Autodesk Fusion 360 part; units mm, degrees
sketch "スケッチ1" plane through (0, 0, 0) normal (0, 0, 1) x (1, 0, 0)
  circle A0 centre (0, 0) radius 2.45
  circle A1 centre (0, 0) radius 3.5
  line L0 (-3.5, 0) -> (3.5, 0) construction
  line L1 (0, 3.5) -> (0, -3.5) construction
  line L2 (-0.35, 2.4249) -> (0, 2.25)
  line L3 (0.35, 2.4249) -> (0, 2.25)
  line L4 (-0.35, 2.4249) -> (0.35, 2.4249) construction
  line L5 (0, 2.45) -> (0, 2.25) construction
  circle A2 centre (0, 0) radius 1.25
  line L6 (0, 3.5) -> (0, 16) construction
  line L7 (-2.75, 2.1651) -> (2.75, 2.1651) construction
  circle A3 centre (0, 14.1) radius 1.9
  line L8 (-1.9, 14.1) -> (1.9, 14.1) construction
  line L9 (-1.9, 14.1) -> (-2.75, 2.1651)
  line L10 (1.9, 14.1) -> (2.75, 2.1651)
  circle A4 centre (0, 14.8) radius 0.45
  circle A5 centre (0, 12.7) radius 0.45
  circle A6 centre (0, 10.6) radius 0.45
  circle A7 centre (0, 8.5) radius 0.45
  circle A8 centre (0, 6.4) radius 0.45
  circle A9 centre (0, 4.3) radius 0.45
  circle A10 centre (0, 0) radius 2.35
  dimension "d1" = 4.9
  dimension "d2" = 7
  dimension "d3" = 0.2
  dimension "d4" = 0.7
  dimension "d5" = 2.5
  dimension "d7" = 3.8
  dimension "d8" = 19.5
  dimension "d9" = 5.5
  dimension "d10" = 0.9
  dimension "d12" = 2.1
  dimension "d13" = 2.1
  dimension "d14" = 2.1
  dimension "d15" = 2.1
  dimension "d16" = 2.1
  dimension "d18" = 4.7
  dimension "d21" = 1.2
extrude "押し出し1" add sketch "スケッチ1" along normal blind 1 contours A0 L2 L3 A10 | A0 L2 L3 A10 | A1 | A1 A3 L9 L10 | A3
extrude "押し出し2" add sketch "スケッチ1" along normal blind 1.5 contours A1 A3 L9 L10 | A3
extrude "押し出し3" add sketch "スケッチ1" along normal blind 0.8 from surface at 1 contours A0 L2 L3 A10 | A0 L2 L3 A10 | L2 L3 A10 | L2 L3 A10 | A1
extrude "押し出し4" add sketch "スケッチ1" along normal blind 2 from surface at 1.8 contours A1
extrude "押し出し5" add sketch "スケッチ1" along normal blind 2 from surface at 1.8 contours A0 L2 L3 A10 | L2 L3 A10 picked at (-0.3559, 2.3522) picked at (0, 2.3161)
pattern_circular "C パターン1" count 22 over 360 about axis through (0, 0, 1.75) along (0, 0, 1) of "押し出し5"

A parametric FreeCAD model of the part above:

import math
import FreeCAD as App
import Part
import Sketcher

V = App.Vector

doc = App.newDocument("Part")
params = doc.addObject("Spreadsheet::Sheet", "Params")
for row, (alias, value) in enumerate([
    ("sketch1_diameter", "4.7 mm"),
    ("sketch1_diameter2", "0.9 mm"),
    ("sketch1_radius", "3.5 mm"),
    ("sketch1_radius2", "1.9 mm"),
    ("pad1_length", "1 mm"),
    ("sketch2_diameter", "0.9 mm"),
    ("sketch2_radius", "3.5 mm"),
    ("sketch2_radius2", "1.9 mm"),
    ("pad2_length", "1.5 mm"),
    ("sketch3_diameter", "7 mm"),
    ("sketch3_diameter2", "2.5 mm"),
    ("pad3_length", "0.8 mm"),
    ("sketch4_diameter", "7 mm"),
    ("sketch4_diameter2", "4.9 mm"),
    ("pad4_length", "2 mm"),
    ("sketch5_radius", "2.45 mm"),
    ("sketch5_radius2", "2.35 mm"),
    ("pad5_length", "2 mm"),
], start=1):
    params.set(f"A{row}", alias)
    params.set(f"B{row}", "=" + value)
    params.setAlias(f"B{row}", alias)

body = doc.addObject("PartDesign::Body", "Body")

sketch1 = doc.addObject("Sketcher::SketchObject", "Sketch")
body.addObject(sketch1)
sketch1.AttachmentSupport = (doc.XY_Plane, [""])
sketch1.MapMode = "FlatFace"
sketch1.addGeometry(Part.ArcOfCircle(Part.Circle(V(0, 0, 0), V(0, 0, 1), 3.5), math.radians(142), math.radians(398)), False)
sketch1.addGeometry(Part.LineSegment(V(2.75, 2.17, 0), V(1.9, 14.1, 0)), False)
sketch1.addGeometry(Part.ArcOfCircle(Part.Circle(V(0, 14.1, 0), V(0, 0, 1), 1.9), math.radians(0), math.radians(180)), False)
sketch1.addGeometry(Part.LineSegment(V(-1.9, 14.1, 0), V(-2.75, 2.17, 0)), False)
sketch1.addGeometry(Part.Circle(V(0, 0, 0), V(0, 0, 1), 2.35), False)
sketch1.addGeometry(Part.Circle(V(0, 10.6, 0), V(0, 0, 1), 0.45), False)
sketch1.addGeometry(Part.Circle(V(0, 4.3, 0), V(0, 0, 1), 0.45), False)
sketch1.addGeometry(Part.Circle(V(0, 6.4, 0), V(0, 0, 1), 0.45), False)
sketch1.addGeometry(Part.Circle(V(0, 8.5, 0), V(0, 0, 1), 0.45), False)
sketch1.addGeometry(Part.Circle(V(0, 14.8, 0), V(0, 0, 1), 0.45), False)
sketch1.addGeometry(Part.Circle(V(0, 12.7, 0), V(0, 0, 1), 0.45), False)
sketch1.addConstraint(Sketcher.Constraint("Coincident", 0, 2, 1, 1))
sketch1.addConstraint(Sketcher.Constraint("Coincident", 1, 2, 2, 1))
sketch1.addConstraint(Sketcher.Constraint("Coincident", 2, 2, 3, 1))
sketch1.addConstraint(Sketcher.Constraint("Coincident", 3, 2, 0, 1))
sketch1.addConstraint(Sketcher.Constraint("Coincident", 0, 3, -1, 1))
sketch1.addConstraint(Sketcher.Constraint("Coincident", 4, 3, -1, 1))
sketch1.addConstraint(Sketcher.Constraint("Equal", 5, 6))
sketch1.addConstraint(Sketcher.Constraint("Equal", 6, 7))
sketch1.addConstraint(Sketcher.Constraint("Equal", 7, 8))
sketch1.addConstraint(Sketcher.Constraint("Equal", 8, 9))
sketch1.addConstraint(Sketcher.Constraint("Equal", 9, 10))
sketch1.addConstraint(Sketcher.Constraint("Symmetric", 1, 2, 2, 2, -2))
sketch1.addConstraint(Sketcher.Constraint("PointOnObject", 5, 3, -2))
sketch1.addConstraint(Sketcher.Constraint("PointOnObject", 6, 3, -2))
sketch1.addConstraint(Sketcher.Constraint("PointOnObject", 7, 3, -2))
sketch1.addConstraint(Sketcher.Constraint("PointOnObject", 8, 3, -2))
sketch1.addConstraint(Sketcher.Constraint("PointOnObject", 9, 3, -2))
sketch1.addConstraint(Sketcher.Constraint("PointOnObject", 10, 3, -2))
sketch1.addConstraint(Sketcher.Constraint("Horizontal", 2, 3, 1, 2))
sketch1.addConstraint(Sketcher.Constraint("Horizontal", 0, 2, 3, 2))
sketch1.addConstraint(Sketcher.Constraint("Diameter", 4, 4.7))
sketch1.addConstraint(Sketcher.Constraint("Diameter", 5, 0.9))
sketch1.addConstraint(Sketcher.Constraint("Radius", 0, 3.5))
sketch1.addConstraint(Sketcher.Constraint("Radius", 2, 1.9))
sketch1.addConstraint(Sketcher.Constraint("DistanceY", 6, 3, 7, 3, 2.1))
sketch1.addConstraint(Sketcher.Constraint("DistanceY", 8, 3, 5, 3, 2.1))
sketch1.addConstraint(Sketcher.Constraint("DistanceY", 7, 3, 8, 3, 2.1))
sketch1.addConstraint(Sketcher.Constraint("DistanceY", 2, 3, 9, 3, 0.7))
sketch1.addConstraint(Sketcher.Constraint("DistanceY", 5, 3, 10, 3, 2.1))
sketch1.addConstraint(Sketcher.Constraint("DistanceY", 10, 3, 9, 3, 2.1))
sketch1.addConstraint(Sketcher.Constraint("DistanceX", 3, 2, 0, 2, 5.5))
sketch1.addConstraint(Sketcher.Constraint("DistanceY", -1, 1, 2, 3, 14.1))
sketch1.setExpression("Constraints[20]", "Params.sketch1_diameter")
sketch1.setExpression("Constraints[21]", "Params.sketch1_diameter2")
sketch1.setExpression("Constraints[22]", "Params.sketch1_radius")
sketch1.setExpression("Constraints[23]", "Params.sketch1_radius2")
pad1 = doc.addObject("PartDesign::Pad", "Pad")
body.addObject(pad1)
pad1.Profile = sketch1
pad1.setExpression("Length", "Params.pad1_length")

sketch2 = doc.addObject("Sketcher::SketchObject", "Sketch001")
body.addObject(sketch2)
sketch2.AttachmentSupport = (doc.XY_Plane, [""])
sketch2.MapMode = "FlatFace"
sketch2.addGeometry(Part.ArcOfCircle(Part.Circle(V(0, 0, 0), V(0, 0, 1), 3.5), math.radians(38), math.radians(142)), False)
sketch2.addGeometry(Part.LineSegment(V(2.75, 2.17, 0), V(1.9, 14.1, 0)), False)
sketch2.addGeometry(Part.ArcOfCircle(Part.Circle(V(0, 14.1, 0), V(0, 0, 1), 1.9), math.radians(0), math.radians(180)), False)
sketch2.addGeometry(Part.LineSegment(V(-1.9, 14.1, 0), V(-2.75, 2.17, 0)), False)
sketch2.addGeometry(Part.Circle(V(0, 4.3, 0), V(0, 0, 1), 0.45), False)
sketch2.addGeometry(Part.Circle(V(0, 6.4, 0), V(0, 0, 1), 0.45), False)
sketch2.addGeometry(Part.Circle(V(0, 8.5, 0), V(0, 0, 1), 0.45), False)
sketch2.addGeometry(Part.Circle(V(0, 10.6, 0), V(0, 0, 1), 0.45), False)
sketch2.addGeometry(Part.Circle(V(0, 14.8, 0), V(0, 0, 1), 0.45), False)
sketch2.addGeometry(Part.Circle(V(0, 12.7, 0), V(0, 0, 1), 0.45), False)
sketch2.addConstraint(Sketcher.Constraint("Coincident", 0, 1, 1, 1))
sketch2.addConstraint(Sketcher.Constraint("Coincident", 1, 2, 2, 1))
sketch2.addConstraint(Sketcher.Constraint("Coincident", 2, 2, 3, 1))
sketch2.addConstraint(Sketcher.Constraint("Coincident", 3, 2, 0, 2))
sketch2.addConstraint(Sketcher.Constraint("Coincident", 0, 3, -1, 1))
sketch2.addConstraint(Sketcher.Constraint("Equal", 4, 5))
sketch2.addConstraint(Sketcher.Constraint("Equal", 5, 6))
sketch2.addConstraint(Sketcher.Constraint("Equal", 6, 7))
sketch2.addConstraint(Sketcher.Constraint("Equal", 7, 8))
sketch2.addConstraint(Sketcher.Constraint("Equal", 8, 9))
sketch2.addConstraint(Sketcher.Constraint("Symmetric", 1, 2, 2, 2, -2))
sketch2.addConstraint(Sketcher.Constraint("PointOnObject", 4, 3, -2))
sketch2.addConstraint(Sketcher.Constraint("PointOnObject", 5, 3, -2))
sketch2.addConstraint(Sketcher.Constraint("PointOnObject", 6, 3, -2))
sketch2.addConstraint(Sketcher.Constraint("PointOnObject", 7, 3, -2))
sketch2.addConstraint(Sketcher.Constraint("PointOnObject", 8, 3, -2))
sketch2.addConstraint(Sketcher.Constraint("PointOnObject", 9, 3, -2))
sketch2.addConstraint(Sketcher.Constraint("Horizontal", 2, 3, 1, 2))
sketch2.addConstraint(Sketcher.Constraint("Horizontal", 0, 1, 3, 2))
sketch2.addConstraint(Sketcher.Constraint("Diameter", 4, 0.9))
sketch2.addConstraint(Sketcher.Constraint("Radius", 0, 3.5))
sketch2.addConstraint(Sketcher.Constraint("Radius", 2, 1.9))
sketch2.addConstraint(Sketcher.Constraint("DistanceY", 4, 3, 5, 3, 2.1))
sketch2.addConstraint(Sketcher.Constraint("DistanceY", 5, 3, 6, 3, 2.1))
sketch2.addConstraint(Sketcher.Constraint("DistanceY", 6, 3, 7, 3, 2.1))
sketch2.addConstraint(Sketcher.Constraint("DistanceY", 2, 3, 8, 3, 0.7))
sketch2.addConstraint(Sketcher.Constraint("DistanceY", 7, 3, 9, 3, 2.1))
sketch2.addConstraint(Sketcher.Constraint("DistanceY", 9, 3, 8, 3, 2.1))
sketch2.addConstraint(Sketcher.Constraint("DistanceX", 3, 2, 0, 1, 5.5))
sketch2.addConstraint(Sketcher.Constraint("DistanceY", -1, 1, 2, 3, 14.1))
sketch2.setExpression("Constraints[19]", "Params.sketch2_diameter")
sketch2.setExpression("Constraints[20]", "Params.sketch2_radius")
sketch2.setExpression("Constraints[21]", "Params.sketch2_radius2")
pad2 = doc.addObject("PartDesign::Pad", "Pad001")
body.addObject(pad2)
pad2.Profile = sketch2
pad2.setExpression("Length", "Params.pad2_length")

sketch3 = doc.addObject("Sketcher::SketchObject", "Sketch002")
body.addObject(sketch3)
sketch3.AttachmentSupport = (doc.XY_Plane, [""])
sketch3.MapMode = "FlatFace"
sketch3.AttachmentOffset = App.Placement(V(0, 0, 1), App.Rotation())
sketch3.addGeometry(Part.Circle(V(0, 0, 0), V(0, 0, 1), 3.5), False)
sketch3.addGeometry(Part.Circle(V(0, 0, 0), V(0, 0, 1), 1.2), False)
sketch3.addConstraint(Sketcher.Constraint("Coincident", 0, 3, -1, 1))
sketch3.addConstraint(Sketcher.Constraint("Coincident", 1, 3, -1, 1))
sketch3.addConstraint(Sketcher.Constraint("Diameter", 0, 7.0))
sketch3.addConstraint(Sketcher.Constraint("Diameter", 1, 2.5))
sketch3.setExpression("Constraints[2]", "Params.sketch3_diameter")
sketch3.setExpression("Constraints[3]", "Params.sketch3_diameter2")
pad3 = doc.addObject("PartDesign::Pad", "Pad002")
body.addObject(pad3)
pad3.Profile = sketch3
pad3.setExpression("Length", "Params.pad3_length")

sketch4 = doc.addObject("Sketcher::SketchObject", "Sketch003")
body.addObject(sketch4)
sketch4.AttachmentSupport = (doc.XY_Plane, [""])
sketch4.MapMode = "FlatFace"
sketch4.AttachmentOffset = App.Placement(V(0, 0, 1.8), App.Rotation())
sketch4.addGeometry(Part.Circle(V(0, 0, 0), V(0, 0, 1), 3.5), False)
sketch4.addGeometry(Part.Circle(V(0, 0, 0), V(0, 0, 1), 2.5), False)
sketch4.addConstraint(Sketcher.Constraint("Coincident", 0, 3, -1, 1))
sketch4.addConstraint(Sketcher.Constraint("Coincident", 1, 3, -1, 1))
sketch4.addConstraint(Sketcher.Constraint("Diameter", 0, 7.0))
sketch4.addConstraint(Sketcher.Constraint("Diameter", 1, 4.9))
sketch4.setExpression("Constraints[2]", "Params.sketch4_diameter")
sketch4.setExpression("Constraints[3]", "Params.sketch4_diameter2")
pad4 = doc.addObject("PartDesign::Pad", "Pad003")
body.addObject(pad4)
pad4.Profile = sketch4
pad4.setExpression("Length", "Params.pad4_length")

sketch5 = doc.addObject("Sketcher::SketchObject", "Sketch004")
body.addObject(sketch5)
sketch5.AttachmentSupport = (doc.XY_Plane, [""])
sketch5.MapMode = "FlatFace"
sketch5.AttachmentOffset = App.Placement(V(0, 0, 1.8), App.Rotation())
sketch5.addGeometry(Part.ArcOfCircle(Part.Circle(V(0, 0, 0), V(0, 0, 1), 2.45), math.radians(98), math.radians(442)), False)
sketch5.addGeometry(Part.LineSegment(V(0.35, 2.42, 0), V(0.19, 2.34, 0)), False)
sketch5.addGeometry(Part.ArcOfCircle(Part.Circle(V(0, 0, 0), V(0, 0, 1), 2.35), math.radians(95), math.radians(445)), False)
sketch5.addGeometry(Part.LineSegment(V(-0.19, 2.34, 0), V(-0.35, 2.42, 0)), False)
sketch5.addGeometry(Part.LineSegment(V(0, 2.25, 0), V(0.19, 2.34, 0)), False)
sketch5.addGeometry(Part.ArcOfCircle(Part.Circle(V(0, 0, 0), V(0, 0, 1), 2.35), math.radians(85.47), math.radians(94.53)), False)
sketch5.addGeometry(Part.LineSegment(V(-0.19, 2.34, 0), V(0, 2.25, 0)), False)
sketch5.addConstraint(Sketcher.Constraint("Coincident", 0, 2, 1, 1))
sketch5.addConstraint(Sketcher.Constraint("Coincident", 1, 2, 2, 2))
sketch5.addConstraint(Sketcher.Constraint("Coincident", 2, 1, 3, 1))
sketch5.addConstraint(Sketcher.Constraint("Coincident", 3, 2, 0, 1))
sketch5.addConstraint(Sketcher.Constraint("Coincident", 4, 2, 5, 1))
sketch5.addConstraint(Sketcher.Constraint("Coincident", 5, 2, 6, 1))
sketch5.addConstraint(Sketcher.Constraint("Coincident", 6, 2, 4, 1))
sketch5.addConstraint(Sketcher.Constraint("Coincident", 0, 3, -1, 1))
sketch5.addConstraint(Sketcher.Constraint("Coincident", 2, 3, -1, 1))
sketch5.addConstraint(Sketcher.Constraint("Coincident", 5, 3, -1, 1))
sketch5.addConstraint(Sketcher.Constraint("Coincident", 4, 2, 1, 2))
sketch5.addConstraint(Sketcher.Constraint("PointOnObject", 6, 2, -2))
sketch5.addConstraint(Sketcher.Constraint("Parallel", 1, 4))
sketch5.addConstraint(Sketcher.Constraint("Parallel", 3, 6))
sketch5.addConstraint(Sketcher.Constraint("Horizontal", 1, 2, 2, 1))
sketch5.addConstraint(Sketcher.Constraint("Horizontal", 0, 2, 3, 2))
sketch5.addConstraint(Sketcher.Constraint("Radius", 0, 2.45))
sketch5.addConstraint(Sketcher.Constraint("Radius", 2, 2.35))
sketch5.addConstraint(Sketcher.Constraint("DistanceX", 3, 2, 0, 2, 0.7))
sketch5.addConstraint(Sketcher.Constraint("DistanceY", -1, 1, 6, 2, 2.25))
sketch5.setExpression("Constraints[16]", "Params.sketch5_radius")
sketch5.setExpression("Constraints[17]", "Params.sketch5_radius2")
pad5 = doc.addObject("PartDesign::Pad", "Pad004")
body.addObject(pad5)
pad5.Profile = sketch5
pad5.setExpression("Length", "Params.pad5_length")
doc.recompute()

polarpattern = doc.addObject("PartDesign::PolarPattern", "PolarPattern")
body.addObject(polarpattern)
polarpattern.Originals = [pad5]
polarpattern.Axis = (doc.Z_Axis, [""])
polarpattern.Angle = 360
polarpattern.Occurrences = 22
body.Tip = polarpattern

doc.recompute()
